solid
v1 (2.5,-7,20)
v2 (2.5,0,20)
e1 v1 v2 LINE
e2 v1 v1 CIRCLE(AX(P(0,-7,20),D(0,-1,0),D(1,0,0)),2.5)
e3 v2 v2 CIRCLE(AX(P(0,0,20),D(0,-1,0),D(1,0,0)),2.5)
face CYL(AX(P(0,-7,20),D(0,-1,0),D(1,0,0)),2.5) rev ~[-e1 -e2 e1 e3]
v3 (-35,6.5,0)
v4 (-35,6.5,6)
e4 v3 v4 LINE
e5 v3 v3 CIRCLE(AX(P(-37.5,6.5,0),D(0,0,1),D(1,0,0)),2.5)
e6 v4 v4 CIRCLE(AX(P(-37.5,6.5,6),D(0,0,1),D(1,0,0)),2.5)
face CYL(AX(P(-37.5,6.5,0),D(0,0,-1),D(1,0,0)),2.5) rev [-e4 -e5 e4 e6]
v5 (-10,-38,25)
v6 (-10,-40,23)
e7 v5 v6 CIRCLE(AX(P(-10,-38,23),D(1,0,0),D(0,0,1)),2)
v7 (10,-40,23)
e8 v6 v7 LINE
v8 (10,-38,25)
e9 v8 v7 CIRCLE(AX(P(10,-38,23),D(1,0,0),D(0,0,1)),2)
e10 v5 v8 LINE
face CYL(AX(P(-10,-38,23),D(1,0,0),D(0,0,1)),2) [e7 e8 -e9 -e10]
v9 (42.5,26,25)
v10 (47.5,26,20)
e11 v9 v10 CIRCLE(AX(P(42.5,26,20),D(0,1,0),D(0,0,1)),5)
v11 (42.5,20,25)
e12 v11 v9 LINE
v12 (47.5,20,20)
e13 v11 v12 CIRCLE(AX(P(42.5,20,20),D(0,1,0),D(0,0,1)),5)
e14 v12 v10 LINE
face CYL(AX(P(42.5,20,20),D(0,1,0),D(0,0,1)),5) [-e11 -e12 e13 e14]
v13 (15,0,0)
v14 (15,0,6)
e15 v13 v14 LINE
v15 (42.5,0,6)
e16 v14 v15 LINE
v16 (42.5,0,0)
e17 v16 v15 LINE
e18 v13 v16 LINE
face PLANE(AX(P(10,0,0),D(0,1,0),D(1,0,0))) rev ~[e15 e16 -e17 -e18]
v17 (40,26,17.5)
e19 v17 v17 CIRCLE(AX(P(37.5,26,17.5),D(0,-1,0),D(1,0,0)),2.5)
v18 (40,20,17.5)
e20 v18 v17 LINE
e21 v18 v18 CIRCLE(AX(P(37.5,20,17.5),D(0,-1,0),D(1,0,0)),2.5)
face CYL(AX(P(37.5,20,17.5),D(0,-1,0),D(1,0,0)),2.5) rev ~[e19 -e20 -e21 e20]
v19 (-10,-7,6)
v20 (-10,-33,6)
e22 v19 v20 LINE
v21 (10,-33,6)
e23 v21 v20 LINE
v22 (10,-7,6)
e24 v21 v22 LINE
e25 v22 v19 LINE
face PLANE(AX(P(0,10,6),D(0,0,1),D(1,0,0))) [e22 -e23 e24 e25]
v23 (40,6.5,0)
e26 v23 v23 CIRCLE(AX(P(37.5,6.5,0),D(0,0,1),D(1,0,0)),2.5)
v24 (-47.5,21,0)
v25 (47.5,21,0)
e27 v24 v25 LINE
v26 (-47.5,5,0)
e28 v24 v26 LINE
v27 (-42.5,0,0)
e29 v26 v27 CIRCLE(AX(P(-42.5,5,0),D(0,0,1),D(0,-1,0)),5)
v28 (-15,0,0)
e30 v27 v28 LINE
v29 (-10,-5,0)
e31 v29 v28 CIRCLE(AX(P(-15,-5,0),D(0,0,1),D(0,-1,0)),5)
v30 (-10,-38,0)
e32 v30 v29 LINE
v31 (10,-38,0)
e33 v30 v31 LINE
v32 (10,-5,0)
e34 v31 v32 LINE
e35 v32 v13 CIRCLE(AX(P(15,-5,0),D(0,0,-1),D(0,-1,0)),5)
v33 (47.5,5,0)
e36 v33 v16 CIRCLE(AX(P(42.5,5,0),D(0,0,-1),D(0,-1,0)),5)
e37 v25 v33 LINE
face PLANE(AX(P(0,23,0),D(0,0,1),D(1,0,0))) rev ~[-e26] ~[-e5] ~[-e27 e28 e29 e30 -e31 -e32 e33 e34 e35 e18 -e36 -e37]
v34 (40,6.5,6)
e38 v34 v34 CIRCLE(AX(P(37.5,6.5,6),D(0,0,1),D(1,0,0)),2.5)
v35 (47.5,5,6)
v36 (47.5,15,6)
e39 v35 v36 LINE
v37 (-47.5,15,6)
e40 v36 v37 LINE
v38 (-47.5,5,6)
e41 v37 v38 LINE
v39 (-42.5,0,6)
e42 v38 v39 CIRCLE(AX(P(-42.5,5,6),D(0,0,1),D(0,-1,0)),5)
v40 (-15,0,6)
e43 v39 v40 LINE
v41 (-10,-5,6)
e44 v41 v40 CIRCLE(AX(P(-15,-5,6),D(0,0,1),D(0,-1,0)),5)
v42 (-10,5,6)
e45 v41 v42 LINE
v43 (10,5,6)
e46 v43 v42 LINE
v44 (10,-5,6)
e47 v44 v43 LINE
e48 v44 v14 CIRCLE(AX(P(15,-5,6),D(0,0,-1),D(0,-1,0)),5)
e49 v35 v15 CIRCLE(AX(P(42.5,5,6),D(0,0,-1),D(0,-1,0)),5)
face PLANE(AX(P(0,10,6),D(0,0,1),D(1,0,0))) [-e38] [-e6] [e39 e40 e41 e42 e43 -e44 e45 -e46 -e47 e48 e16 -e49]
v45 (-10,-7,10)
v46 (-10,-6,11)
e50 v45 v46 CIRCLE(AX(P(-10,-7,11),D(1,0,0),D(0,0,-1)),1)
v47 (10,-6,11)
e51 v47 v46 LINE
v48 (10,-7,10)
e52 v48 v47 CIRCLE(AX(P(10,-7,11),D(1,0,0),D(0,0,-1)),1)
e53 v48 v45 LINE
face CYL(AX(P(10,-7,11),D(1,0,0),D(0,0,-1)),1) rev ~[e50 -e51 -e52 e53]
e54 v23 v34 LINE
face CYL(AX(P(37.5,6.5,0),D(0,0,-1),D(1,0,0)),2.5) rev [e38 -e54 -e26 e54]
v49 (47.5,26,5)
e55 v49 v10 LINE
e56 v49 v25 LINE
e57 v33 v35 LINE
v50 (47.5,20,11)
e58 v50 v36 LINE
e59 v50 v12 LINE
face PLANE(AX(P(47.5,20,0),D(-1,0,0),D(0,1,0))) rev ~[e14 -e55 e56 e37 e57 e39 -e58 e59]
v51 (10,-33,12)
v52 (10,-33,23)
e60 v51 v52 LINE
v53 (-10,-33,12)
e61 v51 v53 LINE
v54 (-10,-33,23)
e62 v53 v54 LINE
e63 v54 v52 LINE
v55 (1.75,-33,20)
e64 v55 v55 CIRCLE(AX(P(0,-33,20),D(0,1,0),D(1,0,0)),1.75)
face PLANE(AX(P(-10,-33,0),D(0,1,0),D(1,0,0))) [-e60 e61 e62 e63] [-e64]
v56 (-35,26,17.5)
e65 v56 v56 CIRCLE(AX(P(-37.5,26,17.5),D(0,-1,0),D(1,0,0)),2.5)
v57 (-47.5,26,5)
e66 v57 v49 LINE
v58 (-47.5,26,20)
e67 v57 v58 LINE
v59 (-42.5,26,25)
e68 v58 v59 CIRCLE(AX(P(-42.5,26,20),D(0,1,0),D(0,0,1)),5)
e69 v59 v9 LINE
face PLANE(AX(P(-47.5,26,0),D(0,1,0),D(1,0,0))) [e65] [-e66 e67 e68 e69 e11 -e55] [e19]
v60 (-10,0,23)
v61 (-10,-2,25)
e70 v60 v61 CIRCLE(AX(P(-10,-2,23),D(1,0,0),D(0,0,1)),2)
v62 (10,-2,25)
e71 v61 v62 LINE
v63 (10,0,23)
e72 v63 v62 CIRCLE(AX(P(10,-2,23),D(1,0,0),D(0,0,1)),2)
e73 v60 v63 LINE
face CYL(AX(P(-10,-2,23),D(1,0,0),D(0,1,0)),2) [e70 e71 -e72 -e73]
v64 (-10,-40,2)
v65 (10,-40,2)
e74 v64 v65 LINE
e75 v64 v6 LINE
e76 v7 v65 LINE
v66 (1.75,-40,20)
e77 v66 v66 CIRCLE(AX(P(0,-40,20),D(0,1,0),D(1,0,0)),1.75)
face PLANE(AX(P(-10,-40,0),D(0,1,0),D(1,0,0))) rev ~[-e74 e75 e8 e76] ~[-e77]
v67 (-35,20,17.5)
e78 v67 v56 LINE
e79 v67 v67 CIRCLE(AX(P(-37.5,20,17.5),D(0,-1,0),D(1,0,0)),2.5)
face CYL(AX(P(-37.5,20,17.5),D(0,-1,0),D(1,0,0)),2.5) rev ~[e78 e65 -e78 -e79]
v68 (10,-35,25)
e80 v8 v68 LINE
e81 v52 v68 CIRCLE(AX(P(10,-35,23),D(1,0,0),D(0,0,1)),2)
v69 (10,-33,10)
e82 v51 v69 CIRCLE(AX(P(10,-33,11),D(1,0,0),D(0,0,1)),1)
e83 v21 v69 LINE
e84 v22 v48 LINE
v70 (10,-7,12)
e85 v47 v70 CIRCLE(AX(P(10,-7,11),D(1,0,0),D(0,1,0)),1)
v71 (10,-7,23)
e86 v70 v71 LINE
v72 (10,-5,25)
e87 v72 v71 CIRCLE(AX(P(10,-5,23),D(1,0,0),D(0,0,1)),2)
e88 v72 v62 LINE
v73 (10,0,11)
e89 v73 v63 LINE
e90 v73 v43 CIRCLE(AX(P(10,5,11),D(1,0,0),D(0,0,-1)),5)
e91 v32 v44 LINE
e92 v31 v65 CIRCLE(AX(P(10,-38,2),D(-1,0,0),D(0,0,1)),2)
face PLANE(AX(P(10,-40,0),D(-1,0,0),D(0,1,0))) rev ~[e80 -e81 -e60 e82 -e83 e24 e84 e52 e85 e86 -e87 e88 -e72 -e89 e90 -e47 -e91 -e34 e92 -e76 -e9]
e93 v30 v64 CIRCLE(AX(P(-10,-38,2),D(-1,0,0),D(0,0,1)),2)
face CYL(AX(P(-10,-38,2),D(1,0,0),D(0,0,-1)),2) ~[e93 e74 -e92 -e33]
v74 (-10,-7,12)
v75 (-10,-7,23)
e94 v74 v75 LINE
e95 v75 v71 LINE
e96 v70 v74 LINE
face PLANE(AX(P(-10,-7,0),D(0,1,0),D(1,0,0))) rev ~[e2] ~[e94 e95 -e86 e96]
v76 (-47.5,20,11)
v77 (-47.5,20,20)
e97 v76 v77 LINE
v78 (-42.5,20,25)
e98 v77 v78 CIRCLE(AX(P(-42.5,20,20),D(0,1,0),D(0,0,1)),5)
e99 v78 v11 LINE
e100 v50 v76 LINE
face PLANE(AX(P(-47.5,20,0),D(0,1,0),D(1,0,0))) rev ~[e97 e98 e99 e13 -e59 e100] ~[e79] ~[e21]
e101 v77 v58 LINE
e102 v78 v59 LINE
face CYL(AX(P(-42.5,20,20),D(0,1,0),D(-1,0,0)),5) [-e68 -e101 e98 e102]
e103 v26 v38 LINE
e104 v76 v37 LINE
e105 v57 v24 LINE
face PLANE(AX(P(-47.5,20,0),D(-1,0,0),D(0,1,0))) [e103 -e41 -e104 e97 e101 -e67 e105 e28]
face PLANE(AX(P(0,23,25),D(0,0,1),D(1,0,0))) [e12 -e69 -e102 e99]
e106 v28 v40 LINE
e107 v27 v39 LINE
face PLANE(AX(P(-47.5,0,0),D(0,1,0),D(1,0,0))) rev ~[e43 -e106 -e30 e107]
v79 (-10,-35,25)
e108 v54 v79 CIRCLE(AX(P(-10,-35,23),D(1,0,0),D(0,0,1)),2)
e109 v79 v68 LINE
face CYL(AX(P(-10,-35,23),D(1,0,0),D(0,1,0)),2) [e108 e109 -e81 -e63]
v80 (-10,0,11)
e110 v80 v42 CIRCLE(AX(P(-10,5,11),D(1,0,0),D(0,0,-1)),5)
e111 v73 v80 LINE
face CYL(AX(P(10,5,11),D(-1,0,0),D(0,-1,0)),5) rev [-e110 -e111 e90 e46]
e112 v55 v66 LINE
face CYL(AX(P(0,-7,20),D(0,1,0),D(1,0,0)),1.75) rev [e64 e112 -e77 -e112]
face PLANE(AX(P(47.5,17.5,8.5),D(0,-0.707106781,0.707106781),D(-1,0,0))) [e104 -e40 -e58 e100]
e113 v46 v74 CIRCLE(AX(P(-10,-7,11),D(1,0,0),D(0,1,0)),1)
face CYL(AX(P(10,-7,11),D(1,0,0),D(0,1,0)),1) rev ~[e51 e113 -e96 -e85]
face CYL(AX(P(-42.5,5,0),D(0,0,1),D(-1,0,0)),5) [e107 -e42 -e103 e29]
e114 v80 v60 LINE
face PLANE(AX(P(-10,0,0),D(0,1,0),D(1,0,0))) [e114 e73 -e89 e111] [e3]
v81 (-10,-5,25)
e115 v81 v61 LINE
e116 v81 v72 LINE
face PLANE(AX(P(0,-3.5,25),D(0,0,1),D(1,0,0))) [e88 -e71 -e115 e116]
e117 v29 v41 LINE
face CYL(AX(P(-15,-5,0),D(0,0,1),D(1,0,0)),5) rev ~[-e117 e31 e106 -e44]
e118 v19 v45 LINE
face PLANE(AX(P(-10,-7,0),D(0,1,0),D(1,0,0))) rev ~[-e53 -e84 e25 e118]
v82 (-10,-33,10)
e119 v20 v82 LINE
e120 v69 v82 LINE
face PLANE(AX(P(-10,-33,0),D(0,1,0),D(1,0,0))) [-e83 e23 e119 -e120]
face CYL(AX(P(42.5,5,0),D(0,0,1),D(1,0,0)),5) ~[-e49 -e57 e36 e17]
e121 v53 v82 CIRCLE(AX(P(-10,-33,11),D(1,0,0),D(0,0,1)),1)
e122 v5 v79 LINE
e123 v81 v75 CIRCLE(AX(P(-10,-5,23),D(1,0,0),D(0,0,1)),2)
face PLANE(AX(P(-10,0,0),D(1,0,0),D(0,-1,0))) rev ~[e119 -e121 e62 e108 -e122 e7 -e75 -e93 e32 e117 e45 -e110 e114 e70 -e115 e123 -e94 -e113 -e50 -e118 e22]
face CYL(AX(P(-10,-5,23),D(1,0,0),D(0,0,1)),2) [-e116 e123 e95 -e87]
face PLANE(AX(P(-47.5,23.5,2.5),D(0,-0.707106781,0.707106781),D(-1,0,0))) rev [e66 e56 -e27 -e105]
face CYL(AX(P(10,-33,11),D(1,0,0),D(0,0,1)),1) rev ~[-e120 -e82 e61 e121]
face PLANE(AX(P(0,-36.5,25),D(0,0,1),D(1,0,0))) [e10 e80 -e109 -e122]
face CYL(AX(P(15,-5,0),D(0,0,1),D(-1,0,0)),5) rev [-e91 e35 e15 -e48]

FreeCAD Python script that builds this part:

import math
import FreeCAD as App
import Part
import Sketcher
from FreeCAD import Vector


def edges_at(feature, points):
    """Names of the edges that pass closest to the given points."""
    edges = feature.Shape.Edges
    near = lambda p: min(range(len(edges)), key=lambda i: edges[i].distToShape(Part.Vertex(*p))[0])
    return sorted({f"Edge{near(p) + 1}" for p in points})


def add_polygon(sketch, points):
    """Adds a closed chain of lines whose ends are joined by coincident constraints."""
    first, n = sketch.GeometryCount, len(points)
    for a, b in zip(points, points[1:] + points[:1]):
        sketch.addGeometry(Part.LineSegment(App.Vector(*a, 0), App.Vector(*b, 0)), False)
    for i in range(n):
        sketch.addConstraint(Sketcher.Constraint("Coincident", first + i, 2, first + (i + 1) % n, 1))

doc = App.newDocument("Part")
body = doc.addObject("PartDesign::Body", "Body")

# Sketch on XY plane
sketch1 = body.newObject("Sketcher::SketchObject", "Sketch")
sketch1.AttachmentSupport = (doc.getObject("XY_Plane"), [""])
sketch1.MapMode = "FlatFace"
add_polygon(sketch1, [(-47.5, 20), (-47.5, 0), (-10, 0), (-10, -40), (10, -40), (10, 0), (47.5, 0), (47.5, 20)])  # lines 0-7
sketch1.addGeometry(Part.Circle(Vector(-37.5, 6.5, 0), Vector(0, 0, 1), 2.5), False)  # 8
sketch1.addGeometry(Part.Circle(Vector(37.5, 6.5, 0), Vector(0, 0, 1), 2.5), False)  # 9
sketch1.addConstraint([
    Sketcher.Constraint("Vertical", 0),
    Sketcher.Constraint("Horizontal", 1),
    Sketcher.Constraint("Vertical", 2),
    Sketcher.Constraint("Horizontal", 3),
    Sketcher.Constraint("Vertical", 4),
    Sketcher.Constraint("Horizontal", 5),
    Sketcher.Constraint("Vertical", 6),
    Sketcher.Constraint("Horizontal", 7),
    Sketcher.Constraint("Equal", 8, 9),
    Sketcher.Constraint("Symmetric", 1, 2, 4, 2, -1, 1),
    Sketcher.Constraint("Symmetric", 8, 3, 9, 3, -2),
    Sketcher.Constraint("Symmetric", 0, 2, 5, 2, -2),
    Sketcher.Constraint("Equal", 3, 0),
    Sketcher.Constraint("Diameter", 8, 5.0),
    Sketcher.Constraint("DistanceX", 3, 1, 3, 2, 20.0),
    Sketcher.Constraint("DistanceX", 7, 2, 7, 1, 95.0),
    Sketcher.Constraint("DistanceY", 2, 2, 2, 1, 40.0),
    Sketcher.Constraint("DistanceX", 8, 3, 9, 3, 75.0),
    Sketcher.Constraint("DistanceY", -1, 1, 8, 3, 6.5),
])
pad1 = body.newObject("PartDesign::Pad", "Pad")
pad1.Profile = sketch1
pad1.Length = 6

# Sketch on XY plane
sketch2 = body.newObject("Sketcher::SketchObject", "Sketch001")
sketch2.AttachmentSupport = (doc.getObject("XY_Plane"), [""])
sketch2.MapMode = "FlatFace"
add_polygon(sketch2, [(-48, 26), (-48, 20), (48, 20), (48, 26)])  # lines 0-3
sketch2.addConstraint([
    Sketcher.Constraint("Vertical", 0),
    Sketcher.Constraint("Horizontal", 1),
    Sketcher.Constraint("Vertical", 2),
    Sketcher.Constraint("Horizontal", 3),
    Sketcher.Constraint("DistanceX", 1, 1, 1, 2, 95.0),
    Sketcher.Constraint("DistanceY", 0, 2, 0, 1, 6.0),
    Sketcher.Constraint("DistanceY", -1, 1, 0, 2, 20.0),
    Sketcher.Constraint("DistanceX", 0, 2, -1, 1, 47.5),
])
pad2 = body.newObject("PartDesign::Pad", "Pad001")
pad2.Profile = sketch2
pad2.Length = 25

# Sketch on XZ plane
sketch3 = body.newObject("Sketcher::SketchObject", "Sketch002")
sketch3.AttachmentSupport = (doc.getObject("XZ_Plane"), [""])
sketch3.MapMode = "FlatFace"
sketch3.AttachmentOffset = App.Placement(Vector(0, 0, -20), App.Rotation())
sketch3.addGeometry([
    Part.Circle(Vector(-37.5, 17.5, 0), Vector(0, 0, 1), 2.5),
    Part.Circle(Vector(37.5, 17.5, 0), Vector(0, 0, 1), 2.5),
], False)
sketch3.addConstraint([
    Sketcher.Constraint("Equal", 0, 1),
    Sketcher.Constraint("Symmetric", 0, 3, 1, 3, -2),
    Sketcher.Constraint("Diameter", 0, 5.0),
    Sketcher.Constraint("DistanceX", 0, 3, 1, 3, 75.0),
    Sketcher.Constraint("DistanceY", -1, 1, 0, 3, 17.5),
])
pocket1 = body.newObject("PartDesign::Pocket", "Pocket")
pocket1.Profile = sketch3
pocket1.Length = 25
doc.recompute()

chamfer = body.newObject("PartDesign::Chamfer", "Chamfer")
chamfer.Base = (pocket1, edges_at(pocket1, [(0, 20, 6), (0, 26, 0)]))
chamfer.Size = 5
doc.recompute()

fillet = body.newObject("PartDesign::Fillet", "Fillet")
fillet.Base = (chamfer, edges_at(chamfer, [
    (47.5, 23, 25),
    (47.5, 0, 3),
    (-47.5, 0, 3),
    (-47.5, 23, 25),
]))
fillet.Radius = 5

# Sketch on XY plane
sketch4 = body.newObject("Sketcher::SketchObject", "Sketch003")
sketch4.AttachmentSupport = (doc.getObject("XY_Plane"), [""])
sketch4.MapMode = "FlatFace"
add_polygon(sketch4, [(-10, 0), (-10, -7), (10, -7), (10, 0)])  # lines 0-3
add_polygon(sketch4, [(-10, -33), (-10, -40), (10, -40), (10, -33)])  # lines 4-7
sketch4.addConstraint([
    Sketcher.Constraint("Vertical", 0),
    Sketcher.Constraint("Horizontal", 1),
    Sketcher.Constraint("Vertical", 2),
    Sketcher.Constraint("Horizontal", 3),
    Sketcher.Constraint("Vertical", 4),
    Sketcher.Constraint("Horizontal", 5),
    Sketcher.Constraint("Vertical", 6),
    Sketcher.Constraint("Horizontal", 7),
    Sketcher.Constraint("Symmetric", 2, 2, 3, 2, -1, 1),
    Sketcher.Constraint("Vertical", 3, 2, 4, 2),
    Sketcher.Constraint("Vertical", 2, 2, 5, 2),
    Sketcher.Constraint("Equal", 2, 4),
    Sketcher.Constraint("DistanceX", 1, 1, 1, 2, 20.0),
    Sketcher.Constraint("DistanceY", 0, 2, 0, 1, 7.0),
    Sketcher.Constraint("DistanceY", 4, 2, -1, 1, 40.0),
])
pad3 = body.newObject("PartDesign::Pad", "Pad002")
pad3.Profile = sketch4
pad3.Length = 25

# Sketch on YZ plane
sketch5 = body.newObject("Sketcher::SketchObject", "Sketch004")
sketch5.AttachmentSupport = (doc.getObject("YZ_Plane"), [""])
sketch5.MapMode = "FlatFace"
sketch5.AttachmentOffset = App.Placement(Vector(0, 0, 10), App.Rotation())
sketch5.addGeometry([
    Part.LineSegment(Vector(-33, 10, 0), Vector(-33, 12, 0)),  # 0
    Part.ArcOfCircle(Part.Circle(Vector(-33, 11, 0), Vector(0, 0, 1), 1), math.radians(90), math.radians(270)),  # 1
    Part.LineSegment(Vector(-7, 12, 0), Vector(-7, 10, 0)),  # 2
    Part.ArcOfCircle(Part.Circle(Vector(-7, 11, 0), Vector(0, 0, 1), 1), math.radians(-90), math.radians(0)),  # 3
    Part.ArcOfCircle(Part.Circle(Vector(-7, 11, 0), Vector(0, 0, 1), 1), math.radians(0), math.radians(90)),  # 4
], False)
sketch5.addConstraint([
    Sketcher.Constraint("Coincident", 0, 1, 1, 2),
    Sketcher.Constraint("Coincident", 1, 1, 0, 2),
    Sketcher.Constraint("Coincident", 2, 2, 3, 1),
    Sketcher.Constraint("Tangent", 3, 2, 4, 1),
    Sketcher.Constraint("Coincident", 4, 2, 2, 1),
    Sketcher.Constraint("Vertical", 0),
    Sketcher.Constraint("Vertical", 2),
    Sketcher.Constraint("Equal", 1, 3),
    Sketcher.Constraint("Equal", 3, 4),
    Sketcher.Constraint("Horizontal", 1, 3, 3, 3),
    Sketcher.Constraint("Horizontal", 4, 3, 3, 2),
    Sketcher.Constraint("Vertical", 1, 3, 0, 1),
    Sketcher.Constraint("Vertical", 4, 3, 2, 2),
    Sketcher.Constraint("Radius", 1, 1.0),
    Sketcher.Constraint("DistanceX", 1, 3, -1, 1, 33.0),
    Sketcher.Constraint("DistanceY", -1, 1, 1, 3, 11.0),
    Sketcher.Constraint("DistanceX", 3, 3, -1, 1, 7.0),
])
pocket2 = body.newObject("PartDesign::Pocket", "Pocket001")
pocket2.Profile = sketch5
pocket2.Length = 25

# Sketch on XZ plane
sketch6 = body.newObject("Sketcher::SketchObject", "Sketch005")
sketch6.AttachmentSupport = (doc.getObject("XZ_Plane"), [""])
sketch6.MapMode = "FlatFace"
sketch6.AttachmentOffset = App.Placement(Vector(0, 0, 7), App.Rotation())
sketch6.addGeometry(Part.Circle(Vector(0, 20, 0), Vector(0, 0, 1), 1.8), False)
sketch6.addConstraint([
    Sketcher.Constraint("PointOnObject", 0, 3, -2),
    Sketcher.Constraint("Diameter", 0, 3.5),
    Sketcher.Constraint("DistanceY", -1, 1, 0, 3, 20.0),
])
pocket3 = body.newObject("PartDesign::Pocket", "Pocket002")
pocket3.Profile = sketch6
pocket3.Length = 50
pocket3.Reversed = True

# Sketch on XZ plane
sketch7 = body.newObject("Sketcher::SketchObject", "Sketch006")
sketch7.AttachmentSupport = (doc.getObject("XZ_Plane"), [""])
sketch7.MapMode = "FlatFace"
sketch7.AttachmentOffset = App.Placement(Vector(0, 0, 7), App.Rotation())
sketch7.addGeometry(Part.Circle(Vector(0, 20, 0), Vector(0, 0, 1), 2.5), False)
sketch7.addConstraint([
    Sketcher.Constraint("PointOnObject", 0, 3, -2),
    Sketcher.Constraint("Diameter", 0, 5.0),
    Sketcher.Constraint("DistanceY", -1, 1, 0, 3, 20.0),
])
pocket4 = body.newObject("PartDesign::Pocket", "Pocket003")
pocket4.Profile = sketch7
pocket4.Length = 10
doc.recompute()

fillet2 = body.newObject("PartDesign::Fillet", "Fillet001")
fillet2.Base = (pocket4, edges_at(pocket4, [
    (0, -7, 25),
    (0, 0, 25),
    (0, -33, 25),
    (0, -40, 25),
    (0, -40, 0),
]))
fillet2.Radius = 2
doc.recompute()

fillet3 = body.newObject("PartDesign::Fillet", "Fillet002")
fillet3.Base = (fillet2, edges_at(fillet2, [(0, 0, 6)]))
fillet3.Radius = 5
doc.recompute()

fillet4 = body.newObject("PartDesign::Fillet", "Fillet003")
fillet4.Base = (fillet3, edges_at(fillet3, [(10, 0, 3), (-10, 0, 3)]))
fillet4.Radius = 5

doc.recompute()
